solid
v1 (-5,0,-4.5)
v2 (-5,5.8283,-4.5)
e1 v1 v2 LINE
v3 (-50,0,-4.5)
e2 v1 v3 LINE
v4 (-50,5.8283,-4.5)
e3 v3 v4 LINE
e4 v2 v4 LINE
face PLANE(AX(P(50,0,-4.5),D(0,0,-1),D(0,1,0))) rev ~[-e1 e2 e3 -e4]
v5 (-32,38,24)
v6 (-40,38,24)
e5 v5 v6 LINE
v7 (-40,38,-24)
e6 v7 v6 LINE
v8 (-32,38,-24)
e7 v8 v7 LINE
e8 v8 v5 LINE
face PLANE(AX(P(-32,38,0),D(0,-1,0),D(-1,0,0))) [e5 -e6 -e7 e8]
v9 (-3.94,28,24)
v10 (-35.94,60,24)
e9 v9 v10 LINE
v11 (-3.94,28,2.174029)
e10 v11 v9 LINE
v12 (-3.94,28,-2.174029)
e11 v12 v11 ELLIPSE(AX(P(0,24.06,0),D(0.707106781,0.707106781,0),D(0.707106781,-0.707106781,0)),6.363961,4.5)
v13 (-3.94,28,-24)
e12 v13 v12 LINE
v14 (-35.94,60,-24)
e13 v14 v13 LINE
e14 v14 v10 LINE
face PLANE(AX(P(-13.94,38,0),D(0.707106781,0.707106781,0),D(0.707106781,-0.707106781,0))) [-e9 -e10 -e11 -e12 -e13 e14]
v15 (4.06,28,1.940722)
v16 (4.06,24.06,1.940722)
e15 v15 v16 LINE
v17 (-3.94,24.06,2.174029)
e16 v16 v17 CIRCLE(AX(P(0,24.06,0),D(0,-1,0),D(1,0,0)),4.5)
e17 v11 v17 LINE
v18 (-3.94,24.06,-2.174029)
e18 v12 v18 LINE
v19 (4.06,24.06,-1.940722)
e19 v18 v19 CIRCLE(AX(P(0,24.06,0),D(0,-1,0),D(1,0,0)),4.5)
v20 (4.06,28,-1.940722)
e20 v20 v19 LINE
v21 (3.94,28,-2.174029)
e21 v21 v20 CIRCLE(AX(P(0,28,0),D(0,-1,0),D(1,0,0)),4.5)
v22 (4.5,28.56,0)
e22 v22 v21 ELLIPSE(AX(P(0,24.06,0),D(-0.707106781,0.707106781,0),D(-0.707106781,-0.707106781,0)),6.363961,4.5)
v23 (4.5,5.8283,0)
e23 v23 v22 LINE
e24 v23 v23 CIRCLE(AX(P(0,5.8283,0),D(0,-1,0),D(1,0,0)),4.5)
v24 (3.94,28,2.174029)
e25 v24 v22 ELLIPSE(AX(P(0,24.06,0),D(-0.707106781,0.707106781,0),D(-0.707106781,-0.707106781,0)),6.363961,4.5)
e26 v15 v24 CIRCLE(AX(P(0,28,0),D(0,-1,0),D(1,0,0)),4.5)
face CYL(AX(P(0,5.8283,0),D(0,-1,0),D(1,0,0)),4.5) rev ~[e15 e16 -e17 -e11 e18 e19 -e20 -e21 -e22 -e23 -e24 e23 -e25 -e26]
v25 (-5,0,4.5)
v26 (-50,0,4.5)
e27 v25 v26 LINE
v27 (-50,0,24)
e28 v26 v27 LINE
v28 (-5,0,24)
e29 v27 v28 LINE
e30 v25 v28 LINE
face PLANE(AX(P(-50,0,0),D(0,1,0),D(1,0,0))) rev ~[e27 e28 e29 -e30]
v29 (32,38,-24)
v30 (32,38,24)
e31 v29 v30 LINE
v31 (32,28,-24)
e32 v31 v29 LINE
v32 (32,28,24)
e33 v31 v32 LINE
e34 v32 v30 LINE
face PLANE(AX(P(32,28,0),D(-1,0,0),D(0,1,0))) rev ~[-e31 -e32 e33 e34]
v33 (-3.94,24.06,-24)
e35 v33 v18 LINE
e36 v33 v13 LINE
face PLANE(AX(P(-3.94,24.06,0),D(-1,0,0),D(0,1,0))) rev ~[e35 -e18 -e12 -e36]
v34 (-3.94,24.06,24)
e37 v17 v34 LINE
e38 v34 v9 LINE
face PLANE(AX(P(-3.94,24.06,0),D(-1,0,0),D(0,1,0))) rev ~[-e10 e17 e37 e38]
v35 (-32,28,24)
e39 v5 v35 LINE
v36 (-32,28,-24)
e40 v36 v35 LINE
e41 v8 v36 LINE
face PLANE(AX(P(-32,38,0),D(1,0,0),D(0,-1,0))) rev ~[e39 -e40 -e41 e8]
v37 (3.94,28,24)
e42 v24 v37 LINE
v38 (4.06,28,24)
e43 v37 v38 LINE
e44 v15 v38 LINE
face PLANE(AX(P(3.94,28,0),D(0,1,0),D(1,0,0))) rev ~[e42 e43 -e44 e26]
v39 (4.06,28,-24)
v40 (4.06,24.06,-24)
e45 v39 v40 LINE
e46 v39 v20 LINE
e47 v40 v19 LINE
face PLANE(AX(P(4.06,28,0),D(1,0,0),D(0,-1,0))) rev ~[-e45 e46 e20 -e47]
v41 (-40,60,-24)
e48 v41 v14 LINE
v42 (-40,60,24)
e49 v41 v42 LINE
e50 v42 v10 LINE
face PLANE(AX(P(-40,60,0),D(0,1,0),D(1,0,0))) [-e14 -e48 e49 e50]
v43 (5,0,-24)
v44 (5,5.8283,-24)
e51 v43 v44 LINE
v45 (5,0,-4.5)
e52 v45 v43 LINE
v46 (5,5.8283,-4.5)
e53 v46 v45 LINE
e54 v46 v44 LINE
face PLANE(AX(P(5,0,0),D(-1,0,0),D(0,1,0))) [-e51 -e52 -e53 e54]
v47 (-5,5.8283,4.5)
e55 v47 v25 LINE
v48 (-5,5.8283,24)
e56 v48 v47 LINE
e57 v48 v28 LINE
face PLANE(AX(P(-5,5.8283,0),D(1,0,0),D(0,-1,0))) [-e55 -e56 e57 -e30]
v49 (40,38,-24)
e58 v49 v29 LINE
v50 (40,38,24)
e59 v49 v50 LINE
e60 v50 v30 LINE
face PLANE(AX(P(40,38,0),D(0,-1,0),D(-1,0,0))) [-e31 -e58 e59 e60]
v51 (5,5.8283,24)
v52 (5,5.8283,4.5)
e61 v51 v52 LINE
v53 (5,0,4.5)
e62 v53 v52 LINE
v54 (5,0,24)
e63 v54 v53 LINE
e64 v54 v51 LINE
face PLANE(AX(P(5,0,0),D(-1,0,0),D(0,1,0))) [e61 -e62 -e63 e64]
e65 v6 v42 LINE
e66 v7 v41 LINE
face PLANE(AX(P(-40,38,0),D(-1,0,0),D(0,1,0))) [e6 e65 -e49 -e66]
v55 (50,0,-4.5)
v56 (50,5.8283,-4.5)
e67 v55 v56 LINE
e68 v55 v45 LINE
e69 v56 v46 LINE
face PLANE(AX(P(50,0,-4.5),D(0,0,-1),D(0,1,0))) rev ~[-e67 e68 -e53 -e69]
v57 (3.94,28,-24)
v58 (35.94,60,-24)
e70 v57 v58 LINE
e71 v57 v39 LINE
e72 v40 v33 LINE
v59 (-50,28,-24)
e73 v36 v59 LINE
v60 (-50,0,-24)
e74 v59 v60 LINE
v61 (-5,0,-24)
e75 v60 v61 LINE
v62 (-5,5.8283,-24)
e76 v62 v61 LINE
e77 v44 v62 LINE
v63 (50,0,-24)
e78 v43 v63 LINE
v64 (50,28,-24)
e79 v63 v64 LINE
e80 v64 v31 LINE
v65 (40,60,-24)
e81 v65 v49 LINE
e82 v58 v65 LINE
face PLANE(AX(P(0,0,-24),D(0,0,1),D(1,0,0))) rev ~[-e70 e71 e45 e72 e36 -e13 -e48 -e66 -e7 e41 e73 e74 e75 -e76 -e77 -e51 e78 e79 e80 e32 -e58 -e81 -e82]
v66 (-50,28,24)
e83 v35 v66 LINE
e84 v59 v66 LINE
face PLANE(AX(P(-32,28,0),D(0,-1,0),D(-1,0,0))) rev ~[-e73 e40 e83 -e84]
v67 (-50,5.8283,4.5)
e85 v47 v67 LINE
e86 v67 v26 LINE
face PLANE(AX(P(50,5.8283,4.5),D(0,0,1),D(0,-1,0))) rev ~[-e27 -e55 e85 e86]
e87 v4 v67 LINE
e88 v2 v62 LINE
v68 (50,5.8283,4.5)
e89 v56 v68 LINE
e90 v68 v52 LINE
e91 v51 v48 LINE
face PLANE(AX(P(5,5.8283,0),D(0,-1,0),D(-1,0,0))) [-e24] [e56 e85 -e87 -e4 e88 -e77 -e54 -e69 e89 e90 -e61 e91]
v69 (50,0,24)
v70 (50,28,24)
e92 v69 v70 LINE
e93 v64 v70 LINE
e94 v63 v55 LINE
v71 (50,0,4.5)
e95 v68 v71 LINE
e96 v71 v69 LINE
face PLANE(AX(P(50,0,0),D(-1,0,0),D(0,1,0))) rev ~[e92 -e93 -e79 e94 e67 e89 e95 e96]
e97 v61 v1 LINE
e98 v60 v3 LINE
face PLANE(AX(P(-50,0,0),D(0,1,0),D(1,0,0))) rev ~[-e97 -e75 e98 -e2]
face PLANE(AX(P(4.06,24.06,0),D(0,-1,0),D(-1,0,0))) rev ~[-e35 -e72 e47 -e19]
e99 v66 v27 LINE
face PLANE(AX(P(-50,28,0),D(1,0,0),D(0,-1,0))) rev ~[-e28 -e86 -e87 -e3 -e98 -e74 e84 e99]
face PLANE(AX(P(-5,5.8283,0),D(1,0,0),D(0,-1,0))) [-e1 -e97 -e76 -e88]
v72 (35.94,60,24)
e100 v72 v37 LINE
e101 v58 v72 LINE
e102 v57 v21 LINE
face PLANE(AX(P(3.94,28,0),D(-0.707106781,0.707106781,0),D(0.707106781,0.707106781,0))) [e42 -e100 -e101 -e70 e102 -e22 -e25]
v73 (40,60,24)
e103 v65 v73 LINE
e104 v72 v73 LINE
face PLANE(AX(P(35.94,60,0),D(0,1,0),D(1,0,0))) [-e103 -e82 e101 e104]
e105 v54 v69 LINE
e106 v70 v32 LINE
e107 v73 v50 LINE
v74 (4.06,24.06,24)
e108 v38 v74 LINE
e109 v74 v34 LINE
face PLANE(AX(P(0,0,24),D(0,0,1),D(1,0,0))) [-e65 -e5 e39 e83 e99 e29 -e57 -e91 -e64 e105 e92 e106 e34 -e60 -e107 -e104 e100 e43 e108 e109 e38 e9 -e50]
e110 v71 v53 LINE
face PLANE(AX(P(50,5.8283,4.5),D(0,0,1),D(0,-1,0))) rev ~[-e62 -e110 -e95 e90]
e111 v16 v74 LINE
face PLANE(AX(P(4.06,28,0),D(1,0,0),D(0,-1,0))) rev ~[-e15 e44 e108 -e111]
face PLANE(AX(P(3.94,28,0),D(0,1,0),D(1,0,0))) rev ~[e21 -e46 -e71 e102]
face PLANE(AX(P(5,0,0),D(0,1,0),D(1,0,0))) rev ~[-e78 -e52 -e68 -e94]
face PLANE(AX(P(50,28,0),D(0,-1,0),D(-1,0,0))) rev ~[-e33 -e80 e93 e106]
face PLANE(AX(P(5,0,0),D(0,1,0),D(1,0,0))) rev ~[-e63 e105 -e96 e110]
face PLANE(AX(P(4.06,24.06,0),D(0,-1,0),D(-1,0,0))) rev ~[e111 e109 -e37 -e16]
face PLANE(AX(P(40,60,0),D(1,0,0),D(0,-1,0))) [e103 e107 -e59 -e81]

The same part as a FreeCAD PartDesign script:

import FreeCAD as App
import Part
import Sketcher
from FreeCAD import Vector
Q = App.Units.Quantity


def add_polygon(sketch, points):
    """Adds a closed chain of lines whose ends are joined by coincident constraints."""
    first, n = sketch.GeometryCount, len(points)
    for a, b in zip(points, points[1:] + points[:1]):
        sketch.addGeometry(Part.LineSegment(App.Vector(*a, 0), App.Vector(*b, 0)), False)
    for i in range(n):
        sketch.addConstraint(Sketcher.Constraint("Coincident", first + i, 2, first + (i + 1) % n, 1))

doc = App.newDocument("Part")
body = doc.addObject("PartDesign::Body", "Body")

# Sketch on XY plane
sketch1 = body.newObject("Sketcher::SketchObject", "Sketch")
sketch1.AttachmentSupport = (doc.getObject("XY_Plane"), [""])
sketch1.MapMode = "FlatFace"
add_polygon(sketch1, [(5, 0), (50, 0), (50, 28), (32, 28), (32, 38), (40, 38), (40, 60), (35.94, 60), (3.94, 28), (4.06, 28), (4.06, 24.06), (-3.94, 24.06), (-3.94, 28), (-35.94, 60), (-40, 60), (-40, 38), (-32, 38), (-32, 28), (-50, 28), (-50, 0), (-5, 0), (-5, 5.83), (5, 5.83)])  # lines 0-22
sketch1.addConstraint([
    Sketcher.Constraint("Horizontal", 0),
    Sketcher.Constraint("Vertical", 1),
    Sketcher.Constraint("Horizontal", 2),
    Sketcher.Constraint("Vertical", 3),
    Sketcher.Constraint("Horizontal", 4),
    Sketcher.Constraint("Vertical", 5),
    Sketcher.Constraint("Horizontal", 6),
    Sketcher.Constraint("Horizontal", 8),
    Sketcher.Constraint("Vertical", 9),
    Sketcher.Constraint("Horizontal", 10),
    Sketcher.Constraint("Vertical", 11),
    Sketcher.Constraint("Horizontal", 13),
    Sketcher.Constraint("Vertical", 14),
    Sketcher.Constraint("Horizontal", 15),
    Sketcher.Constraint("Vertical", 16),
    Sketcher.Constraint("Horizontal", 17),
    Sketcher.Constraint("Vertical", 18),
    Sketcher.Constraint("Horizontal", 19),
    Sketcher.Constraint("Vertical", 20),
    Sketcher.Constraint("Horizontal", 21),
    Sketcher.Constraint("Vertical", 22),
    Sketcher.Constraint("Symmetric", 0, 2, 18, 2, -1, 1),
    Sketcher.Constraint("Symmetric", 7, 2, 11, 2, -2),
    Sketcher.Constraint("Symmetric", 6, 2, 12, 2, -2),
    Sketcher.Constraint("Symmetric", 4, 2, 14, 2, -2),
    Sketcher.Constraint("Symmetric", 2, 2, 16, 2, -2),
    Sketcher.Constraint("Symmetric", 19, 2, 22, 2, -2),
    Sketcher.Constraint("Perpendicular", 7, 12),
    Sketcher.Constraint("Horizontal", 2, 2, 7, 2),
    Sketcher.Constraint("Equal", 4, 10),
    Sketcher.Constraint("Equal", 21, 3),
    Sketcher.Constraint("DistanceX", 4, 1, 4, 2, Q("8 mm")),
    Sketcher.Constraint("DistanceX", 21, 1, 21, 2, Q("10 mm")),
    Sketcher.Constraint("DistanceY", 1, 1, 1, 2, Q("28 mm")),
    Sketcher.Constraint("DistanceX", -1, 1, 0, 2, Q("50 mm")),
    Sketcher.Constraint("DistanceX", -1, 1, 2, 2, Q("32 mm")),
    Sketcher.Constraint("DistanceY", 2, 2, 5, 2, Q("32 mm")),
    Sketcher.Constraint("DistanceX", 6, 2, 6, 1, Q("4.06 mm")),
    Sketcher.Constraint("DistanceY", 9, 2, 9, 1, Q("3.94 mm")),
    Sketcher.Constraint("DistanceY", 20, 1, 20, 2, Q("5.8283 mm")),
])
pad1 = body.newObject("PartDesign::Pad", "Pad")
pad1.Profile = sketch1
pad1.Length = 48
pad1.Midplane = True

# Sketch on YZ plane
sketch2 = body.newObject("Sketcher::SketchObject", "Sketch001")
sketch2.AttachmentSupport = (doc.getObject("YZ_Plane"), [""])
sketch2.MapMode = "FlatFace"
sketch2.AttachmentOffset = App.Placement(Vector(0, 0, 50), App.Rotation())
add_polygon(sketch2, [(0, 4), (0, -4), (6, -4), (6, 4)])  # lines 0-3
sketch2.addConstraint([
    Sketcher.Constraint("Vertical", 0),
    Sketcher.Constraint("Horizontal", 1),
    Sketcher.Constraint("Vertical", 2),
    Sketcher.Constraint("Horizontal", 3),
    Sketcher.Constraint("Symmetric", 0, 2, 3, 2, -1, 1),
    Sketcher.Constraint("DistanceY", 0, 2, 0, 1, Q("9 mm")),
    Sketcher.Constraint("DistanceX", 1, 1, 1, 2, Q("5.8283 mm")),
])
pocket1 = body.newObject("PartDesign::Pocket", "Pocket")
pocket1.Profile = sketch2
pocket1.Type = "ThroughAll"

# Sketch on XZ plane
sketch3 = body.newObject("Sketcher::SketchObject", "Sketch002")
sketch3.AttachmentSupport = (doc.getObject("XZ_Plane"), [""])
sketch3.MapMode = "FlatFace"
sketch3.AttachmentOffset = App.Placement(Vector(0, 0, -5.8283), App.Rotation())
sketch3.addGeometry(Part.Circle(Vector(0, 0, 0), Vector(0, 0, 1), 4.5), False)
sketch3.addConstraint([
    Sketcher.Constraint("Coincident", 0, 3, -1, 1),
    Sketcher.Constraint("Diameter", 0, Q("9 mm")),
])
pocket2 = body.newObject("PartDesign::Pocket", "Pocket001")
pocket2.Profile = sketch3
pocket2.Type = "ThroughAll"

doc.recompute()
